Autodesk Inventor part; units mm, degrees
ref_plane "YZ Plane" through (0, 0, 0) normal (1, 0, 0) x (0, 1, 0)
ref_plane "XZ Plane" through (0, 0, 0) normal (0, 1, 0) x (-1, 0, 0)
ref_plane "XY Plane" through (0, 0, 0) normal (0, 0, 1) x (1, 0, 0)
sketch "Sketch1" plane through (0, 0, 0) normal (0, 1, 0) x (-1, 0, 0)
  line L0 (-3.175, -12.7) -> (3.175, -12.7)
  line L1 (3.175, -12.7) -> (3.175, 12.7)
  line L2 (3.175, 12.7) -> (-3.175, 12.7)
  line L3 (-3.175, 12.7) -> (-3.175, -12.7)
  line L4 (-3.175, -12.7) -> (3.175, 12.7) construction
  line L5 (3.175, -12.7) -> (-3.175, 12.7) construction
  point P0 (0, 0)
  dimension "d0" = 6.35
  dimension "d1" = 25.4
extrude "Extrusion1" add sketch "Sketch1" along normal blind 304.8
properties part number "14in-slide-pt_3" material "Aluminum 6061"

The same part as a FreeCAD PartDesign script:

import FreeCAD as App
import Part
import Sketcher

V = App.Vector
Q = App.Units.Quantity

doc = App.newDocument("Part")
body = doc.addObject("PartDesign::Body", "Body")

# Sketch on XZ plane
sketch1 = body.newObject("Sketcher::SketchObject", "Sketch")
sketch1.AttachmentSupport = (doc.getObject("XZ_Plane"), [""])
sketch1.MapMode = "FlatFace"
sketch1.addGeometry(Part.LineSegment(V(3, 13, 0), V(3, -13, 0)), False)
sketch1.addGeometry(Part.LineSegment(V(3, -13, 0), V(-3, -13, 0)), False)
sketch1.addGeometry(Part.LineSegment(V(-3, -13, 0), V(-3, 13, 0)), False)
sketch1.addGeometry(Part.LineSegment(V(-3, 13, 0), V(3, 13, 0)), False)
sketch1.addConstraint(Sketcher.Constraint("Coincident", 0, 2, 1, 1))
sketch1.addConstraint(Sketcher.Constraint("Coincident", 1, 2, 2, 1))
sketch1.addConstraint(Sketcher.Constraint("Coincident", 2, 2, 3, 1))
sketch1.addConstraint(Sketcher.Constraint("Coincident", 3, 2, 0, 1))
sketch1.addConstraint(Sketcher.Constraint("Vertical", 0))
sketch1.addConstraint(Sketcher.Constraint("Horizontal", 1))
sketch1.addConstraint(Sketcher.Constraint("Vertical", 2))
sketch1.addConstraint(Sketcher.Constraint("Horizontal", 3))
sketch1.addConstraint(Sketcher.Constraint("Symmetric", 0, 2, 2, 2, -1, 1))
sketch1.addConstraint(Sketcher.Constraint("DistanceY", 0, 2, 0, 1, Q("1 in")))
sketch1.addConstraint(Sketcher.Constraint("DistanceX", 1, 2, 1, 1, Q("0.25 in")))
pad1 = body.newObject("PartDesign::Pad", "Pad")
pad1.Profile = sketch1
pad1.Length = Q("12 in")
pad1.Reversed = True

doc.recompute()
